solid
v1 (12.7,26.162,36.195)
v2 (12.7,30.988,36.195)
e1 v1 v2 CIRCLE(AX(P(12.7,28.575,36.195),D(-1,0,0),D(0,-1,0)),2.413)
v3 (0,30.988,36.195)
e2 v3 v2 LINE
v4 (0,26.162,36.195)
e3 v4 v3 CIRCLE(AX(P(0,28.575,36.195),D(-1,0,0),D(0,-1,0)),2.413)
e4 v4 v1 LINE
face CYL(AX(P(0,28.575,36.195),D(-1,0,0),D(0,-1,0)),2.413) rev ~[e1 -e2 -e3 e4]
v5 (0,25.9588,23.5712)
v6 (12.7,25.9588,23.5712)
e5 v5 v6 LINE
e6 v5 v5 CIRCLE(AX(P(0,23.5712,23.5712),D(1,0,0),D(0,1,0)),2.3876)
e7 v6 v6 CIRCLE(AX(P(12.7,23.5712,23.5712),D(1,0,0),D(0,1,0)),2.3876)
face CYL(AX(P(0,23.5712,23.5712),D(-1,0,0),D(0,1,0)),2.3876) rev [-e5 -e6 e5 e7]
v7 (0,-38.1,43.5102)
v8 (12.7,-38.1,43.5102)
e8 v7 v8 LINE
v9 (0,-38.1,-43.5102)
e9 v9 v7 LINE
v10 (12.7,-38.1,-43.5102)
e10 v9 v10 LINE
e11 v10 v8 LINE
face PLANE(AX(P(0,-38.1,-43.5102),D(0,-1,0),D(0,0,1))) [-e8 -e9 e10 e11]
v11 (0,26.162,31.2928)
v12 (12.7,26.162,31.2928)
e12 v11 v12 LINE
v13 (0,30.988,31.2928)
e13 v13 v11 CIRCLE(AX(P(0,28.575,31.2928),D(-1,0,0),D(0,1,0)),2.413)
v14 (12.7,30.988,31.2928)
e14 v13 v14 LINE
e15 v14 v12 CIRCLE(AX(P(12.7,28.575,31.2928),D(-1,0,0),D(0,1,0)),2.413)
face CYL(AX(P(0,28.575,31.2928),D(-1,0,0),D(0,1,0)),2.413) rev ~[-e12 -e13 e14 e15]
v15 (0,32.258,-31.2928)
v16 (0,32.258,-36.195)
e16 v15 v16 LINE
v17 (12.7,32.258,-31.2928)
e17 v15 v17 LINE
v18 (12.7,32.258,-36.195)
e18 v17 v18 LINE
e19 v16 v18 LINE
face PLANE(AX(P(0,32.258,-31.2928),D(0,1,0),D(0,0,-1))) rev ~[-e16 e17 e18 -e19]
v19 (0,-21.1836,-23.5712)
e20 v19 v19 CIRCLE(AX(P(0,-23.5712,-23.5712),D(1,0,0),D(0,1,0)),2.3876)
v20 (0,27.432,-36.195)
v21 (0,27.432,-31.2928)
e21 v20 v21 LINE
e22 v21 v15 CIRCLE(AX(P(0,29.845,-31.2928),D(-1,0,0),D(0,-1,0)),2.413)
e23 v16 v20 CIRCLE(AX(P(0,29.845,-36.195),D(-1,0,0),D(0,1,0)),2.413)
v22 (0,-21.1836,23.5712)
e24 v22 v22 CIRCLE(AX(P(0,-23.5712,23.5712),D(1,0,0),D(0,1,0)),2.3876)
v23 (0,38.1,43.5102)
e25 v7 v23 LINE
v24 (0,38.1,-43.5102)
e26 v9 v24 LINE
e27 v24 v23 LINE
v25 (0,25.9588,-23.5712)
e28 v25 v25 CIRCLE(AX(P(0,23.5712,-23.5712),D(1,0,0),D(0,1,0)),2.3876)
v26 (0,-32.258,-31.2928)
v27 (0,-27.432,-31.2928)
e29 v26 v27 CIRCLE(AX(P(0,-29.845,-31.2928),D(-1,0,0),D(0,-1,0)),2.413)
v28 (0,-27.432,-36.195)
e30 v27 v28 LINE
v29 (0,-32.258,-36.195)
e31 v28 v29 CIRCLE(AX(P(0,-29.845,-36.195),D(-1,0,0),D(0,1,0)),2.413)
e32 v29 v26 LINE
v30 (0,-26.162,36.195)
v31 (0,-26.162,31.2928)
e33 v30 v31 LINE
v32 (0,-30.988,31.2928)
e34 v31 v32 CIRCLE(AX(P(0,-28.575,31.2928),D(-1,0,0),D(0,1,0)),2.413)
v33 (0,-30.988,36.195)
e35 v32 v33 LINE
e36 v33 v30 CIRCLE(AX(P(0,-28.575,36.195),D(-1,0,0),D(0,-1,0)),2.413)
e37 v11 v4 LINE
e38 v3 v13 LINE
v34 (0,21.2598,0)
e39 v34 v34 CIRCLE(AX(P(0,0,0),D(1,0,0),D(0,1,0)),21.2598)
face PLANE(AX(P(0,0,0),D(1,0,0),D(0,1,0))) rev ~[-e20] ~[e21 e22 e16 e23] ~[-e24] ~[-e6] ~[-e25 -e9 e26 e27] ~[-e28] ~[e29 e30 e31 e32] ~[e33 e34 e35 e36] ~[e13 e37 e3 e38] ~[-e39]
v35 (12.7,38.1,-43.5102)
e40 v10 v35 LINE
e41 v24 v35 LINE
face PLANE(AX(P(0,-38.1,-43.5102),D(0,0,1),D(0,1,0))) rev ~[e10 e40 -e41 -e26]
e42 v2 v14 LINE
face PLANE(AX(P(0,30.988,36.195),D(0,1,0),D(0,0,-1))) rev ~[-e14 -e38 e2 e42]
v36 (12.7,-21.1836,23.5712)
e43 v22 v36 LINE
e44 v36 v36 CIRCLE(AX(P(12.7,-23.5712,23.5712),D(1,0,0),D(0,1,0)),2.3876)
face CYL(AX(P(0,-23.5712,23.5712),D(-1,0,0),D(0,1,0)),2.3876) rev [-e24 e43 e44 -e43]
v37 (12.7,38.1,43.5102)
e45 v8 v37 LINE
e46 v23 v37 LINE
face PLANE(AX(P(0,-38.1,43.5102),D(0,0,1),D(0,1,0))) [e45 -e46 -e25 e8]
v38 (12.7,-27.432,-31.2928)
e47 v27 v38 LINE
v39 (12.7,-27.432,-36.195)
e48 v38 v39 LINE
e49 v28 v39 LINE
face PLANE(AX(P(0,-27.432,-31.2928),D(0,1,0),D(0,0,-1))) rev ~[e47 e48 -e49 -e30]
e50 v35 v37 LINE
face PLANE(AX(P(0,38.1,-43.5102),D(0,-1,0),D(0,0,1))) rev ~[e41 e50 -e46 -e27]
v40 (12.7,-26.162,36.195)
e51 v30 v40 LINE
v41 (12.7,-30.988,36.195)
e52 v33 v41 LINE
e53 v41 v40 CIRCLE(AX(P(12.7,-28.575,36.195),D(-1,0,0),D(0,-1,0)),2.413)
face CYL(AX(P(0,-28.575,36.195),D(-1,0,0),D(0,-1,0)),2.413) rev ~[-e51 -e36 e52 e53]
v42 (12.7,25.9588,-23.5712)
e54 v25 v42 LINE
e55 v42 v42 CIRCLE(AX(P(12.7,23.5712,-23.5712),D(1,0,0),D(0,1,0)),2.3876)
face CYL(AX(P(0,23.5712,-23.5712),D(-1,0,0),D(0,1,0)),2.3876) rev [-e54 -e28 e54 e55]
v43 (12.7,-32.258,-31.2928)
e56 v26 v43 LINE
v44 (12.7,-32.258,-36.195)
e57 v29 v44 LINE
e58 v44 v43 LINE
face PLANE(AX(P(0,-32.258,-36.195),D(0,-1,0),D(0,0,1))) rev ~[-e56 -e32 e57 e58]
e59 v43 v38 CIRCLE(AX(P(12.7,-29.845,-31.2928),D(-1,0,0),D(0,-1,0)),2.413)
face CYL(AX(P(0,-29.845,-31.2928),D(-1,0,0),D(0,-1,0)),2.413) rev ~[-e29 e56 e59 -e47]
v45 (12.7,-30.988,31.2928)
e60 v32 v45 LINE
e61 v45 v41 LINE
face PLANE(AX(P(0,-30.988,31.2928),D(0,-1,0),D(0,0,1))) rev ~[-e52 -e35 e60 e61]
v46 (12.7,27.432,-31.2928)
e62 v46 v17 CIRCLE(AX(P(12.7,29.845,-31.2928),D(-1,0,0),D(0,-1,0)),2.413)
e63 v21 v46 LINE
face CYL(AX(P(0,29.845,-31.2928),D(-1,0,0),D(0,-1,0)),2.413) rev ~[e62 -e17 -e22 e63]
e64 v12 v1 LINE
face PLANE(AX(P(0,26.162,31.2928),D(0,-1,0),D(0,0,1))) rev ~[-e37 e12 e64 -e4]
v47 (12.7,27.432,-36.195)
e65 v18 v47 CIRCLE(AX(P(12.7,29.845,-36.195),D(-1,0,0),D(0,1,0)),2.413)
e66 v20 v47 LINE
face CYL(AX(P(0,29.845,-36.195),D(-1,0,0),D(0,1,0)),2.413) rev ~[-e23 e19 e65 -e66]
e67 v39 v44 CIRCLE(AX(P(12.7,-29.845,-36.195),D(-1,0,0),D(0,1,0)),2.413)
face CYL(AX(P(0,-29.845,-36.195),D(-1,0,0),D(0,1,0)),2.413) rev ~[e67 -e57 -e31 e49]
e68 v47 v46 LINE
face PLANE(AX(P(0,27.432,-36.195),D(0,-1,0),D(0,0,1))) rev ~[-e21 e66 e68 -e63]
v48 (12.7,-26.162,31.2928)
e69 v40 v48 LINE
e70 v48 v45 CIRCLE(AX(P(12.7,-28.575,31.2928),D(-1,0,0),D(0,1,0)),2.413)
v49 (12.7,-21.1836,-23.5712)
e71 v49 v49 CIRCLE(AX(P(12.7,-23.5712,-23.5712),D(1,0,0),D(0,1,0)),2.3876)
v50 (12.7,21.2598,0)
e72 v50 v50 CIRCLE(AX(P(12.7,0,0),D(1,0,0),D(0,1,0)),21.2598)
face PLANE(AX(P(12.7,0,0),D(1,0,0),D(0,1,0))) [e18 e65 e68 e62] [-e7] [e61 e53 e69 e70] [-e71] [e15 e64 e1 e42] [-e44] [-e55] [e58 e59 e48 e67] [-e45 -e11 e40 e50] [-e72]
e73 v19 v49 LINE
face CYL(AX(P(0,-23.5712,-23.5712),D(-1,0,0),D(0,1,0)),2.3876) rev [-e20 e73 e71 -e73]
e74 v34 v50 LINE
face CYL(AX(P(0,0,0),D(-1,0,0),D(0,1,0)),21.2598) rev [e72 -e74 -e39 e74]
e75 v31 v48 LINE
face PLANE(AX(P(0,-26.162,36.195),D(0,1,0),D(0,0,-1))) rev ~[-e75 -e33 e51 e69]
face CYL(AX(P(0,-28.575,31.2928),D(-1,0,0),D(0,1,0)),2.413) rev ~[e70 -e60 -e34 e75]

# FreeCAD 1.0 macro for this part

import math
import FreeCAD as App
import Part
import Sketcher
Q = App.Units.Quantity


def add_polygon(sketch, points):
    """Adds a closed chain of lines whose ends are joined by coincident constraints."""
    first, n = sketch.GeometryCount, len(points)
    for a, b in zip(points, points[1:] + points[:1]):
        sketch.addGeometry(Part.LineSegment(App.Vector(*a, 0), App.Vector(*b, 0)), False)
    for i in range(n):
        sketch.addConstraint(Sketcher.Constraint("Coincident", first + i, 2, first + (i + 1) % n, 1))

doc = App.newDocument("Part")
params = doc.addObject("Spreadsheet::Sheet", "Params")
for row, (alias, value) in enumerate([
    ("sketch1_width", "3 in"),
    ("sketch1_diameter", "0.188 in"),
    ("sketch1_diameter2", "1.674 in"),
    ("sketch1_radius", "0.095 in"),
    ("sketch1_height", "3.426 in"),
    ("pad1_length", "0.5 in"),
], start=1):
    params.set(f"A{row}", alias)
    params.set(f"B{row}", "=" + value)
    params.setAlias(f"B{row}", alias)

body = doc.addObject("PartDesign::Body", "Body")

sketch1 = doc.addObject("Sketcher::SketchObject", "Sketch")
body.addObject(sketch1)
sketch1.AttachmentSupport = (doc.YZ_Plane, [""])
sketch1.MapMode = "FlatFace"
add_polygon(sketch1, [(-38.1, 43.5), (-38.1, -43.5), (38.1, -43.5), (38.1, 43.5)])
sketch1.addGeometry(Part.LineSegment(App.Vector(-32.3, -36.2, 0), App.Vector(-32.3, -31.3, 0)), False)
sketch1.addGeometry(Part.ArcOfCircle(Part.Circle(App.Vector(-29.8, -31.3, 0), App.Vector(0, 0, 1), 2.4), math.radians(0), math.radians(180)), False)
sketch1.addGeometry(Part.LineSegment(App.Vector(-27.4, -31.3, 0), App.Vector(-27.4, -36.2, 0)), False)
sketch1.addGeometry(Part.ArcOfCircle(Part.Circle(App.Vector(-29.8, -36.2, 0), App.Vector(0, 0, 1), 2.4), math.radians(180), math.radians(360)), False)
sketch1.addGeometry(Part.Circle(App.Vector(-23.6, -23.6, 0), App.Vector(0, 0, 1), 2.4), False)
sketch1.addGeometry(Part.LineSegment(App.Vector(32.3, -31.3, 0), App.Vector(32.3, -36.2, 0)), False)
sketch1.addGeometry(Part.ArcOfCircle(Part.Circle(App.Vector(29.8, -36.2, 0), App.Vector(0, 0, 1), 2.4), math.radians(180), math.radians(360)), False)
sketch1.addGeometry(Part.LineSegment(App.Vector(27.4, -36.2, 0), App.Vector(27.4, -31.3, 0)), False)
sketch1.addGeometry(Part.ArcOfCircle(Part.Circle(App.Vector(29.8, -31.3, 0), App.Vector(0, 0, 1), 2.4), math.radians(0), math.radians(180)), False)
sketch1.addGeometry(Part.Circle(App.Vector(23.6, -23.6, 0), App.Vector(0, 0, 1), 2.4), False)
sketch1.addGeometry(Part.Circle(App.Vector(-23.6, 23.6, 0), App.Vector(0, 0, 1), 2.4), False)
sketch1.addGeometry(Part.LineSegment(App.Vector(-31, 31.3, 0), App.Vector(-31, 36.2, 0)), False)
sketch1.addGeometry(Part.ArcOfCircle(Part.Circle(App.Vector(-28.6, 36.2, 0), App.Vector(0, 0, 1), 2.4), math.radians(0), math.radians(180)), False)
sketch1.addGeometry(Part.LineSegment(App.Vector(-26.2, 36.2, 0), App.Vector(-26.2, 31.3, 0)), False)
sketch1.addGeometry(Part.ArcOfCircle(Part.Circle(App.Vector(-28.6, 31.3, 0), App.Vector(0, 0, 1), 2.4), math.radians(180), math.radians(360)), False)
sketch1.addGeometry(Part.Circle(App.Vector(0, 0, 0), App.Vector(0, 0, 1), 21.3), False)
sketch1.addGeometry(Part.Circle(App.Vector(23.6, 23.6, 0), App.Vector(0, 0, 1), 2.4), False)
sketch1.addGeometry(Part.LineSegment(App.Vector(26.2, 31.3, 0), App.Vector(26.2, 36.2, 0)), False)
sketch1.addGeometry(Part.ArcOfCircle(Part.Circle(App.Vector(28.6, 36.2, 0), App.Vector(0, 0, 1), 2.4), math.radians(0), math.radians(180)), False)
sketch1.addGeometry(Part.LineSegment(App.Vector(31, 36.2, 0), App.Vector(31, 31.3, 0)), False)
sketch1.addGeometry(Part.ArcOfCircle(Part.Circle(App.Vector(28.6, 31.3, 0), App.Vector(0, 0, 1), 2.4), math.radians(180), math.radians(360)), False)
sketch1.addConstraint(Sketcher.Constraint("Tangent", 4, 2, 5, 2))
sketch1.addConstraint(Sketcher.Constraint("Tangent", 5, 1, 6, 1))
sketch1.addConstraint(Sketcher.Constraint("Tangent", 6, 2, 7, 2))
sketch1.addConstraint(Sketcher.Constraint("Tangent", 7, 1, 4, 1))
sketch1.addConstraint(Sketcher.Constraint("Tangent", 9, 2, 10, 2))
sketch1.addConstraint(Sketcher.Constraint("Tangent", 10, 1, 11, 1))
sketch1.addConstraint(Sketcher.Constraint("Tangent", 11, 2, 12, 2))
sketch1.addConstraint(Sketcher.Constraint("Tangent", 12, 1, 9, 1))
sketch1.addConstraint(Sketcher.Constraint("Tangent", 15, 2, 16, 2))
sketch1.addConstraint(Sketcher.Constraint("Tangent", 16, 1, 17, 1))
sketch1.addConstraint(Sketcher.Constraint("Tangent", 17, 2, 18, 2))
sketch1.addConstraint(Sketcher.Constraint("Tangent", 18, 1, 15, 1))
sketch1.addConstraint(Sketcher.Constraint("Tangent", 21, 2, 22, 2))
sketch1.addConstraint(Sketcher.Constraint("Tangent", 22, 1, 23, 1))
sketch1.addConstraint(Sketcher.Constraint("Tangent", 23, 2, 24, 2))
sketch1.addConstraint(Sketcher.Constraint("Tangent", 24, 1, 21, 1))
sketch1.addConstraint(Sketcher.Constraint("Vertical", 0))
sketch1.addConstraint(Sketcher.Constraint("Horizontal", 1))
sketch1.addConstraint(Sketcher.Constraint("Vertical", 2))
sketch1.addConstraint(Sketcher.Constraint("Horizontal", 3))
sketch1.addConstraint(Sketcher.Constraint("Vertical", 4))
sketch1.addConstraint(Sketcher.Constraint("Vertical", 6))
sketch1.addConstraint(Sketcher.Constraint("Vertical", 9))
sketch1.addConstraint(Sketcher.Constraint("Vertical", 11))
sketch1.addConstraint(Sketcher.Constraint("Vertical", 15))
sketch1.addConstraint(Sketcher.Constraint("Vertical", 17))
sketch1.addConstraint(Sketcher.Constraint("Vertical", 21))
sketch1.addConstraint(Sketcher.Constraint("Vertical", 23))
sketch1.addConstraint(Sketcher.Constraint("Coincident", 19, 3, -1, 1))
sketch1.addConstraint(Sketcher.Constraint("Equal", 7, 10))
sketch1.addConstraint(Sketcher.Constraint("Equal", 8, 13))
sketch1.addConstraint(Sketcher.Constraint("Equal", 13, 14))
sketch1.addConstraint(Sketcher.Constraint("Equal", 12, 16))
sketch1.addConstraint(Sketcher.Constraint("Equal", 14, 20))
sketch1.addConstraint(Sketcher.Constraint("Equal", 18, 22))
sketch1.addConstraint(Sketcher.Constraint("Symmetric", 13, 3, 14, 3, -1, 1))
sketch1.addConstraint(Sketcher.Constraint("Symmetric", 8, 3, 20, 3, -1, 1))
sketch1.addConstraint(Sketcher.Constraint("Symmetric", 0, 2, 2, 2, -1, 1))
sketch1.addConstraint(Sketcher.Constraint("Symmetric", 7, 3, 10, 3, -2))
sketch1.addConstraint(Sketcher.Constraint("Symmetric", 8, 3, 13, 3, -2))
sketch1.addConstraint(Sketcher.Constraint("Symmetric", 16, 3, 22, 3, -2))
sketch1.addConstraint(Sketcher.Constraint("Horizontal", 5, 3, 12, 3))
sketch1.addConstraint(Sketcher.Constraint("Horizontal", 18, 3, 24, 3))
sketch1.addConstraint(Sketcher.Constraint("Equal", 11, 15))
sketch1.addConstraint(Sketcher.Constraint("DistanceX", 1, 1, 1, 2, Q("3 in")))
sketch1.addConstraint(Sketcher.Constraint("Diameter", 8, Q("0.188 in")))
sketch1.addConstraint(Sketcher.Constraint("Diameter", 19, Q("1.674 in")))
sketch1.addConstraint(Sketcher.Constraint("Radius", 5, Q("0.095 in")))
sketch1.addConstraint(Sketcher.Constraint("DistanceY", 0, 2, 0, 1, Q("3.426 in")))
sketch1.addConstraint(Sketcher.Constraint("DistanceY", 4, 1, 4, 2, Q("0.193 in")))
sketch1.addConstraint(Sketcher.Constraint("DistanceX", 4, 2, -1, 1, Q("1.27 in")))
sketch1.addConstraint(Sketcher.Constraint("DistanceX", 15, 2, -1, 1, Q("1.22 in")))
sketch1.addConstraint(Sketcher.Constraint("DistanceY", 5, 3, 14, 3, Q("2.16 in")))
sketch1.addConstraint(Sketcher.Constraint("DistanceY", 7, 3, 16, 3, Q("2.85 in")))
sketch1.addConstraint(Sketcher.Constraint("DistanceY", 8, 3, 18, 3, Q("2.16 in")))
sketch1.addConstraint(Sketcher.Constraint("DistanceX", 8, 3, -1, 1, Q("0.928 in")))
sketch1.setExpression("Constraints[48]", "Params.sketch1_width")
sketch1.setExpression("Constraints[49]", "Params.sketch1_diameter")
sketch1.setExpression("Constraints[50]", "Params.sketch1_diameter2")
sketch1.setExpression("Constraints[51]", "Params.sketch1_radius")
sketch1.setExpression("Constraints[52]", "Params.sketch1_height")
pad1 = doc.addObject("PartDesign::Pad", "Pad")
body.addObject(pad1)
pad1.Profile = sketch1
pad1.setExpression("Length", "Params.pad1_length")

doc.recompute()
